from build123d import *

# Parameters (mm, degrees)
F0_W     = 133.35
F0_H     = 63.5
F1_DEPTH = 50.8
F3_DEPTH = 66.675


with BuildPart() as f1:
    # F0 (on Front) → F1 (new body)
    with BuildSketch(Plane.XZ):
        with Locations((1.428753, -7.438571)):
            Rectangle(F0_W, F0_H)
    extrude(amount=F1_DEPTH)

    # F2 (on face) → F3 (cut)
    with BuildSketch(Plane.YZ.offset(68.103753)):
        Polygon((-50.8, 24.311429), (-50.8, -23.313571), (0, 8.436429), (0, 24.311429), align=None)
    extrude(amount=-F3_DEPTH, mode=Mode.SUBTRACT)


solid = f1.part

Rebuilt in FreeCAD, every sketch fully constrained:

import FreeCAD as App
import Part
import Sketcher
from FreeCAD import Vector
Q = App.Units.Quantity

doc = App.newDocument("Part")
body = doc.addObject("PartDesign::Body", "Body")

# Sketch on XZ plane
sketch1 = body.newObject("Sketcher::SketchObject", "Sketch")
sketch1.AttachmentSupport = (doc.getObject("XZ_Plane"), [""])
sketch1.MapMode = "FlatFace"
sketch1.addGeometry(Part.LineSegment(Vector(-65, 24, 0), Vector(-65, -39, 0)), False)
sketch1.addGeometry(Part.LineSegment(Vector(-65, -39, 0), Vector(68, -39, 0)), False)
sketch1.addGeometry(Part.LineSegment(Vector(68, -39, 0), Vector(68, 24, 0)), False)
sketch1.addGeometry(Part.LineSegment(Vector(68, 24, 0), Vector(-65, 24, 0)), False)
sketch1.addConstraint(Sketcher.Constraint("Coincident", 0, 2, 1, 1))
sketch1.addConstraint(Sketcher.Constraint("Coincident", 1, 2, 2, 1))
sketch1.addConstraint(Sketcher.Constraint("Coincident", 2, 2, 3, 1))
sketch1.addConstraint(Sketcher.Constraint("Coincident", 3, 2, 0, 1))
sketch1.addConstraint(Sketcher.Constraint("Vertical", 0))
sketch1.addConstraint(Sketcher.Constraint("Horizontal", 1))
sketch1.addConstraint(Sketcher.Constraint("Vertical", 2))
sketch1.addConstraint(Sketcher.Constraint("Horizontal", 3))
sketch1.addConstraint(Sketcher.Constraint("DistanceY", 0, 2, 0, 1, Q("2.5 in")))
sketch1.addConstraint(Sketcher.Constraint("DistanceX", 1, 1, 1, 2, Q("5.25 in")))
sketch1.addConstraint(Sketcher.Constraint("DistanceY", 0, 2, -1, 1, 39.188571))
sketch1.addConstraint(Sketcher.Constraint("DistanceX", 0, 2, -1, 1, 65.246247))
pad1 = body.newObject("PartDesign::Pad", "Pad")
pad1.Profile = sketch1
pad1.Length = Q("2 in")

# Sketch on YZ plane
sketch2 = body.newObject("Sketcher::SketchObject", "Sketch001")
sketch2.AttachmentSupport = (doc.getObject("YZ_Plane"), [""])
sketch2.MapMode = "FlatFace"
sketch2.AttachmentOffset = App.Placement(Vector(0, 0, 68.103753), App.Rotation())
sketch2.addGeometry(Part.LineSegment(Vector(-51, 24, 0), Vector(-51, -23, 0)), False)
sketch2.addGeometry(Part.LineSegment(Vector(-51, -23, 0), Vector(0, 8, 0)), False)
sketch2.addGeometry(Part.LineSegment(Vector(0, 8, 0), Vector(0, 24, 0)), False)
sketch2.addGeometry(Part.LineSegment(Vector(0, 24, 0), Vector(-51, 24, 0)), False)
sketch2.addConstraint(Sketcher.Constraint("Coincident", 0, 2, 1, 1))
sketch2.addConstraint(Sketcher.Constraint("Coincident", 1, 2, 2, 1))
sketch2.addConstraint(Sketcher.Constraint("Coincident", 2, 2, 3, 1))
sketch2.addConstraint(Sketcher.Constraint("Coincident", 3, 2, 0, 1))
sketch2.addConstraint(Sketcher.Constraint("Vertical", 0))
sketch2.addConstraint(Sketcher.Constraint("Vertical", 2))
sketch2.addConstraint(Sketcher.Constraint("Horizontal", 3))
sketch2.addConstraint(Sketcher.Constraint("PointOnObject", 1, 2, -2))
sketch2.addConstraint(Sketcher.Constraint("DistanceX", 3, 2, 3, 1, Q("2 in")))
sketch2.addConstraint(Sketcher.Constraint("DistanceY", 0, 2, 0, 1, Q("1.875 in")))
sketch2.addConstraint(Sketcher.Constraint("DistanceY", 2, 1, 2, 2, Q("0.625 in")))
sketch2.addConstraint(Sketcher.Constraint("DistanceY", 0, 2, -1, 1, 23.313571))
pocket1 = body.newObject("PartDesign::Pocket", "Pocket")
pocket1.Profile = sketch2
pocket1.Length = Q("2.625 in")

doc.recompute()
